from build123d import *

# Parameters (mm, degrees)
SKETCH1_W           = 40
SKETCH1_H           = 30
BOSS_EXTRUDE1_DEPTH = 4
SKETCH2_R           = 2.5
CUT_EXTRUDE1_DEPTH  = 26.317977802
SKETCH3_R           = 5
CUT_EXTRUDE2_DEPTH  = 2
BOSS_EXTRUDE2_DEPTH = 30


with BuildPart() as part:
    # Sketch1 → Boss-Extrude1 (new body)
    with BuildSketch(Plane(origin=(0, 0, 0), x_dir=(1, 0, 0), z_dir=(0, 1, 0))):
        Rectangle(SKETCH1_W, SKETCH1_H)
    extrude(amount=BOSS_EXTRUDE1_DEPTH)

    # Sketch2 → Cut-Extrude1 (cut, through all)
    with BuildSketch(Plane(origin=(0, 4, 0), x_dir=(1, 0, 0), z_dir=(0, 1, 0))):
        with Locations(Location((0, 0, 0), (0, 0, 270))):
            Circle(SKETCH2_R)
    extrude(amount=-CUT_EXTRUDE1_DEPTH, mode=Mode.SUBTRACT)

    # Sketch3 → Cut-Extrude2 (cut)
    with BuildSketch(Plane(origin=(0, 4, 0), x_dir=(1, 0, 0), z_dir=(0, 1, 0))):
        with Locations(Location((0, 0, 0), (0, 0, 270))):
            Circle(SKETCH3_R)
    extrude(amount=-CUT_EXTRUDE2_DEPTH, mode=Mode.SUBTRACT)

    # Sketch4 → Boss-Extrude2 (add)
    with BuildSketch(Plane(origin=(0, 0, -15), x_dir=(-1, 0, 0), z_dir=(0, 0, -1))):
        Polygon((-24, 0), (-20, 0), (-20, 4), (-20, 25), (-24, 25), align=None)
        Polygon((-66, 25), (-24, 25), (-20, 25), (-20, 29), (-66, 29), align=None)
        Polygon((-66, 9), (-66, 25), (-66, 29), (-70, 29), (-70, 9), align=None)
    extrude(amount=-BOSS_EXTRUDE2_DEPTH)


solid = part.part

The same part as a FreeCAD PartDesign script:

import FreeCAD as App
import Part
import Sketcher
from FreeCAD import Vector


def add_polygon(sketch, points):
    """Adds a closed chain of lines whose ends are joined by coincident constraints."""
    first, n = sketch.GeometryCount, len(points)
    for a, b in zip(points, points[1:] + points[:1]):
        sketch.addGeometry(Part.LineSegment(App.Vector(*a, 0), App.Vector(*b, 0)), False)
    for i in range(n):
        sketch.addConstraint(Sketcher.Constraint("Coincident", first + i, 2, first + (i + 1) % n, 1))

doc = App.newDocument("Part")
body = doc.addObject("PartDesign::Body", "Body")

# Sketch on XZ plane
sketch1 = body.newObject("Sketcher::SketchObject", "Sketch")
sketch1.AttachmentSupport = (doc.getObject("XZ_Plane"), [""])
sketch1.MapMode = "FlatFace"
add_polygon(sketch1, [(-20, -15), (-20, 15), (20, 15), (20, -15)])  # lines 0-3
sketch1.addConstraint(Sketcher.Constraint("Vertical", 0))
sketch1.addConstraint(Sketcher.Constraint("Horizontal", 1))
sketch1.addConstraint(Sketcher.Constraint("Vertical", 2))
sketch1.addConstraint(Sketcher.Constraint("Horizontal", 3))
sketch1.addConstraint(Sketcher.Constraint("Symmetric", 0, 2, 2, 2, -1, 1))
sketch1.addConstraint(Sketcher.Constraint("DistanceX", 1, 1, 1, 2, 40.0))
sketch1.addConstraint(Sketcher.Constraint("DistanceY", 0, 1, 0, 2, 30.0))
pad1 = body.newObject("PartDesign::Pad", "Pad")
pad1.Profile = sketch1
pad1.Length = 4
pad1.Reversed = True

# Sketch on XZ plane
sketch2 = body.newObject("Sketcher::SketchObject", "Sketch001")
sketch2.AttachmentSupport = (doc.getObject("XZ_Plane"), [""])
sketch2.MapMode = "FlatFace"
sketch2.AttachmentOffset = App.Placement(Vector(0, 0, -4), App.Rotation())
sketch2.addGeometry(Part.Circle(Vector(0, 0, 0), Vector(0, 0, 1), 2.5), False)
sketch2.addConstraint(Sketcher.Constraint("Coincident", 0, 3, -1, 1))
sketch2.addConstraint(Sketcher.Constraint("Diameter", 0, 5.0))
pocket1 = body.newObject("PartDesign::Pocket", "Pocket")
pocket1.Profile = sketch2
pocket1.Type = "ThroughAll"
pocket1.Reversed = True

# Sketch on XZ plane
sketch3 = body.newObject("Sketcher::SketchObject", "Sketch002")
sketch3.AttachmentSupport = (doc.getObject("XZ_Plane"), [""])
sketch3.MapMode = "FlatFace"
sketch3.AttachmentOffset = App.Placement(Vector(0, 0, -4), App.Rotation())
sketch3.addGeometry(Part.Circle(Vector(0, 0, 0), Vector(0, 0, 1), 5), False)
sketch3.addConstraint(Sketcher.Constraint("Coincident", 0, 3, -1, 1))
sketch3.addConstraint(Sketcher.Constraint("Diameter", 0, 10.0))
pocket2 = body.newObject("PartDesign::Pocket", "Pocket001")
pocket2.Profile = sketch3
pocket2.Length = 2
pocket2.Reversed = True

# Sketch on XY plane
sketch4 = body.newObject("Sketcher::SketchObject", "Sketch003")
sketch4.AttachmentSupport = (doc.getObject("XY_Plane"), [""])
sketch4.MapMode = "FlatFace"
sketch4.AttachmentOffset = App.Placement(Vector(0, 0, -15), App.Rotation())
add_polygon(sketch4, [(24, 0), (20, 0), (20, 29), (70, 29), (70, 9), (66, 9), (66, 25), (24, 25)])  # lines 0-7
sketch4.addConstraint(Sketcher.Constraint("Horizontal", 0))
sketch4.addConstraint(Sketcher.Constraint("Vertical", 1))
sketch4.addConstraint(Sketcher.Constraint("Horizontal", 2))
sketch4.addConstraint(Sketcher.Constraint("Vertical", 3))
sketch4.addConstraint(Sketcher.Constraint("Horizontal", 4))
sketch4.addConstraint(Sketcher.Constraint("Vertical", 5))
sketch4.addConstraint(Sketcher.Constraint("Horizontal", 6))
sketch4.addConstraint(Sketcher.Constraint("Vertical", 7))
sketch4.addConstraint(Sketcher.Constraint("PointOnObject", 0, 2, -1))
sketch4.addConstraint(Sketcher.Constraint("Equal", 0, 4))
sketch4.addConstraint(Sketcher.Constraint("DistanceX", 0, 2, 0, 1, 4.0))
sketch4.addConstraint(Sketcher.Constraint("DistanceX", 2, 1, 2, 2, 50.0))
sketch4.addConstraint(Sketcher.Constraint("DistanceY", 1, 1, 1, 2, 29.0))
sketch4.addConstraint(Sketcher.Constraint("DistanceY", 3, 2, 3, 1, 20.0))
sketch4.addConstraint(Sketcher.Constraint("DistanceY", 5, 1, 5, 2, 16.0))
sketch4.addConstraint(Sketcher.Constraint("DistanceX", -1, 1, 0, 2, 20.0))
pad2 = body.newObject("PartDesign::Pad", "Pad001")
pad2.Profile = sketch4
pad2.Length = 30

doc.recompute()
